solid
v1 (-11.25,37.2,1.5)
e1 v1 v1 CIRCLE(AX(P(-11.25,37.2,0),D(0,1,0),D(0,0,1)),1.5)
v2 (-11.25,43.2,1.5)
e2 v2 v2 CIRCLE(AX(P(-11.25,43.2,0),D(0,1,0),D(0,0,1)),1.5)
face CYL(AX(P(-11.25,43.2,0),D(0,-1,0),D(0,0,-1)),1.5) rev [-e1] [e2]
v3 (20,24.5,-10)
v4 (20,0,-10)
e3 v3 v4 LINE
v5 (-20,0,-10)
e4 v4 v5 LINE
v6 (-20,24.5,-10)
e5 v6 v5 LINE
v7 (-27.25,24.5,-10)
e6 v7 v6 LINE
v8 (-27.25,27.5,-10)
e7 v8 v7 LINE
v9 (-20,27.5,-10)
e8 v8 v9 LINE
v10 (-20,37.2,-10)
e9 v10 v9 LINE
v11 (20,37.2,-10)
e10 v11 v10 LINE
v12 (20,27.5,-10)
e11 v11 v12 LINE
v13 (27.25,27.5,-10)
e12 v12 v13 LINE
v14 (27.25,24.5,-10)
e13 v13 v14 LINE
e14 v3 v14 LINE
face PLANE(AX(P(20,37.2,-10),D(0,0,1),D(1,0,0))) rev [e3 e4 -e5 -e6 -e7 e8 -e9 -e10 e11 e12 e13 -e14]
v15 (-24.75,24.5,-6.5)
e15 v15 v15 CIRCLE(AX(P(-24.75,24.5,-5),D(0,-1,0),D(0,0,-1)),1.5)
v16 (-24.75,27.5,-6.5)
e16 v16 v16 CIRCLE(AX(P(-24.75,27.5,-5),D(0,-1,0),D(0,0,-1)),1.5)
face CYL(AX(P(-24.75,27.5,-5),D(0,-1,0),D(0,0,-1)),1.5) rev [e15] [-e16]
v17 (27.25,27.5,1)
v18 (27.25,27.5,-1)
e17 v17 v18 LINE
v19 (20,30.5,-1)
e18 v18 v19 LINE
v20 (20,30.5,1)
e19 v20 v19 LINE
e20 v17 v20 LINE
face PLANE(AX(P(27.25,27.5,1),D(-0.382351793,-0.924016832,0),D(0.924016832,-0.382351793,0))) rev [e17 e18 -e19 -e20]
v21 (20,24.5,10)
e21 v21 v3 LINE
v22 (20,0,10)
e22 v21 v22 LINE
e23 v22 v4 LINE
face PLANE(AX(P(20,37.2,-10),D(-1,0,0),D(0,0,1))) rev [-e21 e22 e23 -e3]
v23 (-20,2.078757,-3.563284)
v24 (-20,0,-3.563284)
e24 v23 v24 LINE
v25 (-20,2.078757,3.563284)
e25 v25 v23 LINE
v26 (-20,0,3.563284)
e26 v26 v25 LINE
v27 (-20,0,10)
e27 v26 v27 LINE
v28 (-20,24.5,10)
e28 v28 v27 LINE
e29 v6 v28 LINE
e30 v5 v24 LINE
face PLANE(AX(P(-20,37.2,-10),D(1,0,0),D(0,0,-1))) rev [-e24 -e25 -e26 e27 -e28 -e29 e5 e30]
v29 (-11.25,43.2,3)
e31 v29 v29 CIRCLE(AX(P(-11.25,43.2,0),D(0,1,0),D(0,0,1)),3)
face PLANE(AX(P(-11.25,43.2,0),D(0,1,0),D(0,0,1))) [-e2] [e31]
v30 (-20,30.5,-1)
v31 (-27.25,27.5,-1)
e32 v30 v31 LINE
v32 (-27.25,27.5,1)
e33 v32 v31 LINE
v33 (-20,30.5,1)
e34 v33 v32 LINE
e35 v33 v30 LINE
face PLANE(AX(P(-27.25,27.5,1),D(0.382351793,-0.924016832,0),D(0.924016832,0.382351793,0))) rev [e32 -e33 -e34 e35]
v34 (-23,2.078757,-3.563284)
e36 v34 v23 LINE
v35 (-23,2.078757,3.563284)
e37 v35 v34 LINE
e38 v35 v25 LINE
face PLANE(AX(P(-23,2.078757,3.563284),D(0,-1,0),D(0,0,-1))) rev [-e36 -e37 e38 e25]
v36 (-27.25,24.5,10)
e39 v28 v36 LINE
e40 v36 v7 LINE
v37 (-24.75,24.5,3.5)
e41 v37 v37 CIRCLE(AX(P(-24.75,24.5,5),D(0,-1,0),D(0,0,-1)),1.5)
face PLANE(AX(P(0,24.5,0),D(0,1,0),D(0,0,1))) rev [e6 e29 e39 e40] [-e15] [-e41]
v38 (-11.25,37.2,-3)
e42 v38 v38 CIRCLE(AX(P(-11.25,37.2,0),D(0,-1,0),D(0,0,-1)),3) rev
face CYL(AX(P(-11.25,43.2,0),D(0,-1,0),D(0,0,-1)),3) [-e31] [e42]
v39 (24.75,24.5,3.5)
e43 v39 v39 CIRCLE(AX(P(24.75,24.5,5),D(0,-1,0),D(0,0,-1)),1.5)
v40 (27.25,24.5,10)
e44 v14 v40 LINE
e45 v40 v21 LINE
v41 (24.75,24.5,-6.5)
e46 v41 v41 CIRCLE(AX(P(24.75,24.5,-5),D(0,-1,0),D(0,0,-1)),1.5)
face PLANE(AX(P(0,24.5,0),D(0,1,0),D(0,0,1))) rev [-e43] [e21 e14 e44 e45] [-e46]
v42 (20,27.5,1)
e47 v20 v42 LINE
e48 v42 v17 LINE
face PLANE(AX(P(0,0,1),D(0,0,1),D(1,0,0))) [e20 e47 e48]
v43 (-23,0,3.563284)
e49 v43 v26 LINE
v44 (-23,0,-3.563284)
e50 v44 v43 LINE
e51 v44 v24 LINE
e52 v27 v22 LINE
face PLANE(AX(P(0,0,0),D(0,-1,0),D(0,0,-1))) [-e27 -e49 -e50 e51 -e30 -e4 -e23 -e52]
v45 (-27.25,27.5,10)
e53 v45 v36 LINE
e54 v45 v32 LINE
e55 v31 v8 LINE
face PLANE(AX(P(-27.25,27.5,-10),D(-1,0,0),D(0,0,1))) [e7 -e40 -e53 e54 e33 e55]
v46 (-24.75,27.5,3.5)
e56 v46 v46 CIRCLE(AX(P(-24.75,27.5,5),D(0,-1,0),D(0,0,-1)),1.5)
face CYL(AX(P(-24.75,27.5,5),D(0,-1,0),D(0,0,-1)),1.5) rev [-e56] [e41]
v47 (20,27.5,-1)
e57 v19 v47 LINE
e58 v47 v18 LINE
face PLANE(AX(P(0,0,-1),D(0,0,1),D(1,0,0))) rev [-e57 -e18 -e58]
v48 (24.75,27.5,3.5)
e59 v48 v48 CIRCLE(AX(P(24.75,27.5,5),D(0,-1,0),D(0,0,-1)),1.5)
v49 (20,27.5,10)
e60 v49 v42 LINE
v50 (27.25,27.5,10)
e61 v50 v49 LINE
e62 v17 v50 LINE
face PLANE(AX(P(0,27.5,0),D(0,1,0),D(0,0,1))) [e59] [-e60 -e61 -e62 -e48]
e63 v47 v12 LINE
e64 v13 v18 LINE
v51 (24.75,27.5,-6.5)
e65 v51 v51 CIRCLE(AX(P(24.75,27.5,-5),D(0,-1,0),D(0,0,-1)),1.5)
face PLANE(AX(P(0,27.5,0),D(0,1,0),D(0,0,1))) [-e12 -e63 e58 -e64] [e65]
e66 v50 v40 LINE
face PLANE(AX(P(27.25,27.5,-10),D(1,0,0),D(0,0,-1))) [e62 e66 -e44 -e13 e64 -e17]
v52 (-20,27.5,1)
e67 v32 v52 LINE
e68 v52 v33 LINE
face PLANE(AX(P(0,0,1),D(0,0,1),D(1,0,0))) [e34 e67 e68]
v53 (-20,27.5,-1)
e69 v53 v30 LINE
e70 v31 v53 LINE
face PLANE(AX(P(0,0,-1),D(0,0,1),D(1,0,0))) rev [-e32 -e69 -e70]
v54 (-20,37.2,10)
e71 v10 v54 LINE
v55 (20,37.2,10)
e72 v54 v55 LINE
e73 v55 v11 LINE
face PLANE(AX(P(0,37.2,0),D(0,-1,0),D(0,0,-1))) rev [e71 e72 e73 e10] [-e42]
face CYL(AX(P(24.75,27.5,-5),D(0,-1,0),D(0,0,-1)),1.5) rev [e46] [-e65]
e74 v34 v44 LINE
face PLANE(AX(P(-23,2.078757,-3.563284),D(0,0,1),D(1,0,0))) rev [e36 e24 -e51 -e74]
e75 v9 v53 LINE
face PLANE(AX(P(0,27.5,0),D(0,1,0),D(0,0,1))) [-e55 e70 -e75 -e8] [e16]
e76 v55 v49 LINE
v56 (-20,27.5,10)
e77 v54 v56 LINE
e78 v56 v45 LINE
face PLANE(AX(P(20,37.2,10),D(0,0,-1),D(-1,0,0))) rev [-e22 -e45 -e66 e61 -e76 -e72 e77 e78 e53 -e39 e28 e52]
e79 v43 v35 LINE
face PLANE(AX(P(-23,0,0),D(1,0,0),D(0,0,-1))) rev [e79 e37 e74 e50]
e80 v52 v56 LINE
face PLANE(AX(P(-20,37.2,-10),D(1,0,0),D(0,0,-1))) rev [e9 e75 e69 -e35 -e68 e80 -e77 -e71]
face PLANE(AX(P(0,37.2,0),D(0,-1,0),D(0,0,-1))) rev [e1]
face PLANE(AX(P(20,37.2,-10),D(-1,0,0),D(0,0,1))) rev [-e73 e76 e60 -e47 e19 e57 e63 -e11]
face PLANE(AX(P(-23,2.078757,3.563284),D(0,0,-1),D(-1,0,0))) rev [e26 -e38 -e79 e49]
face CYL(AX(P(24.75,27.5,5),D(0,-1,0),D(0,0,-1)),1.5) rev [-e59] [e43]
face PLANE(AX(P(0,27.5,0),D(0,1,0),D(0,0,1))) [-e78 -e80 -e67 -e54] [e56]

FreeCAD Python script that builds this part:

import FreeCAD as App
import Part
import Sketcher
from FreeCAD import Vector


def add_polygon(sketch, points):
    """Adds a closed chain of lines whose ends are joined by coincident constraints."""
    first, n = sketch.GeometryCount, len(points)
    for a, b in zip(points, points[1:] + points[:1]):
        sketch.addGeometry(Part.LineSegment(App.Vector(*a, 0), App.Vector(*b, 0)), False)
    for i in range(n):
        sketch.addConstraint(Sketcher.Constraint("Coincident", first + i, 2, first + (i + 1) % n, 1))

doc = App.newDocument("Part")
body = doc.addObject("PartDesign::Body", "Body")

sketch1 = body.newObject("Sketcher::SketchObject", "Sketch")
sketch1.AttachmentSupport = (doc.getObject("XZ_Plane"), [""])
sketch1.MapMode = "FlatFace"
add_polygon(sketch1, [(-20, -10), (-20, 10), (20, 10), (20, -10)])
sketch1.addConstraint([
    Sketcher.Constraint("Vertical", 0),
    Sketcher.Constraint("Horizontal", 1),
    Sketcher.Constraint("Vertical", 2),
    Sketcher.Constraint("Horizontal", 3),
    Sketcher.Constraint("Symmetric", 0, 2, 2, 2, -1, 1),
    Sketcher.Constraint("DistanceX", 1, 1, 1, 2, 40.0),
    Sketcher.Constraint("DistanceY", 0, 1, 0, 2, 20.0),
])
pad1 = body.newObject("PartDesign::Pad", "Pad")
pad1.Profile = sketch1
pad1.Length = 37.2
pad1.Reversed = True

sketch2 = body.newObject("Sketcher::SketchObject", "Sketch001")
sketch2.AttachmentSupport = (doc.getObject("XZ_Plane"), [""])
sketch2.MapMode = "FlatFace"
sketch2.AttachmentOffset = App.Placement(Vector(0, 0, -24.5), App.Rotation())
add_polygon(sketch2, [(27.2, -10), (27.2, 10), (-27.2, 10), (-27.2, -10)])
sketch2.addGeometry(Part.Circle(Vector(24.8, 5, 0), Vector(0, 0, 1), 1.5), False)
sketch2.addGeometry(Part.Circle(Vector(-24.8, 5, 0), Vector(0, 0, 1), 1.5), False)
sketch2.addGeometry(Part.Circle(Vector(24.8, -5, 0), Vector(0, 0, 1), 1.5), False)
sketch2.addGeometry(Part.Circle(Vector(-24.8, -5, 0), Vector(0, 0, 1), 1.5), False)
sketch2.addConstraint([
    Sketcher.Constraint("Vertical", 0),
    Sketcher.Constraint("Horizontal", 1),
    Sketcher.Constraint("Vertical", 2),
    Sketcher.Constraint("Horizontal", 3),
    Sketcher.Constraint("Equal", 4, 5),
    Sketcher.Constraint("Equal", 5, 6),
    Sketcher.Constraint("Equal", 6, 7),
    Sketcher.Constraint("Symmetric", 5, 3, 6, 3, -1, 1),
    Sketcher.Constraint("Symmetric", 4, 3, 7, 3, -1, 1),
    Sketcher.Constraint("Symmetric", 0, 2, 2, 2, -1, 1),
    Sketcher.Constraint("Symmetric", 4, 3, 5, 3, -2),
    Sketcher.Constraint("Diameter", 4, 3.0),
    Sketcher.Constraint("DistanceY", 0, 1, 0, 2, 20.0),
    Sketcher.Constraint("DistanceX", 1, 2, 1, 1, 54.5),
    Sketcher.Constraint("DistanceY", -1, 1, 4, 3, 5.0),
    Sketcher.Constraint("DistanceX", 5, 3, 0, 2, 52.0),
])
pad2 = body.newObject("PartDesign::Pad", "Pad001")
pad2.Profile = sketch2
pad2.Length = 3
pad2.Reversed = True

sketch3 = body.newObject("Sketcher::SketchObject", "Sketch002")
sketch3.AttachmentSupport = (doc.getObject("XZ_Plane"), [""])
sketch3.MapMode = "FlatFace"
sketch3.AttachmentOffset = App.Placement(Vector(0, 0, -37.2), App.Rotation())
sketch3.addGeometry([
    Part.Circle(Vector(-11.2, 0, 0), Vector(0, 0, 1), 3),
    Part.Circle(Vector(-11.2, 0, 0), Vector(0, 0, 1), 1.5),
], False)
sketch3.addConstraint([
    Sketcher.Constraint("Coincident", 1, 3, 0, 3),
    Sketcher.Constraint("PointOnObject", 0, 3, -1),
    Sketcher.Constraint("Diameter", 0, 6.0),
    Sketcher.Constraint("Diameter", 1, 3.0),
    Sketcher.Constraint("DistanceX", 0, 3, -1, 1, 11.25),
])
pad3 = body.newObject("PartDesign::Pad", "Pad002")
pad3.Profile = sketch3
pad3.Length = 6
pad3.Reversed = True

sketch4 = body.newObject("Sketcher::SketchObject", "Sketch003")
sketch4.AttachmentSupport = (doc.getObject("YZ_Plane"), [""])
sketch4.MapMode = "FlatFace"
sketch4.AttachmentOffset = App.Placement(Vector(0, 0, -20), App.Rotation())
add_polygon(sketch4, [(2.1, -3.6), (0, -3.6), (0, 3.6), (2.1, 3.6)])
sketch4.addConstraint([
    Sketcher.Constraint("Horizontal", 0),
    Sketcher.Constraint("Vertical", 1),
    Sketcher.Constraint("Horizontal", 2),
    Sketcher.Constraint("Vertical", 3),
    Sketcher.Constraint("Symmetric", 0, 2, 1, 2, -1, 1),
    Sketcher.Constraint("DistanceY", 1, 1, 1, 2, 7.126569),
    Sketcher.Constraint("DistanceX", 0, 2, 0, 1, 2.078757),
])
pad4 = body.newObject("PartDesign::Pad", "Pad003")
pad4.Profile = sketch4
pad4.Length = 3
pad4.Reversed = True

sketch5 = body.newObject("Sketcher::SketchObject", "Sketch004")
sketch5.AttachmentSupport = (doc.getObject("XY_Plane"), [""])
sketch5.MapMode = "FlatFace"
add_polygon(sketch5, [(-20, 30.5), (-27.2, 27.5), (-20, 27.5)])
add_polygon(sketch5, [(20, 27.5), (27.2, 27.5), (20, 30.5)])
sketch5.addConstraint([
    Sketcher.Constraint("Horizontal", 1),
    Sketcher.Constraint("Vertical", 2),
    Sketcher.Constraint("Horizontal", 3),
    Sketcher.Constraint("Vertical", 5),
    Sketcher.Constraint("Symmetric", 0, 2, 3, 2, -2),
    Sketcher.Constraint("Symmetric", 2, 2, 4, 2, -2),
    Sketcher.Constraint("DistanceY", 2, 1, 2, 2, 3.0),
    Sketcher.Constraint("DistanceX", 1, 2, -1, 1, 20.0),
    Sketcher.Constraint("DistanceX", 1, 1, 1, 2, 7.25),
    Sketcher.Constraint("DistanceY", -1, 1, 0, 2, 27.5),
])
pad5 = body.newObject("PartDesign::Pad", "Pad004")
pad5.Profile = sketch5
pad5.Length = 2
pad5.Midplane = True

doc.recompute()
